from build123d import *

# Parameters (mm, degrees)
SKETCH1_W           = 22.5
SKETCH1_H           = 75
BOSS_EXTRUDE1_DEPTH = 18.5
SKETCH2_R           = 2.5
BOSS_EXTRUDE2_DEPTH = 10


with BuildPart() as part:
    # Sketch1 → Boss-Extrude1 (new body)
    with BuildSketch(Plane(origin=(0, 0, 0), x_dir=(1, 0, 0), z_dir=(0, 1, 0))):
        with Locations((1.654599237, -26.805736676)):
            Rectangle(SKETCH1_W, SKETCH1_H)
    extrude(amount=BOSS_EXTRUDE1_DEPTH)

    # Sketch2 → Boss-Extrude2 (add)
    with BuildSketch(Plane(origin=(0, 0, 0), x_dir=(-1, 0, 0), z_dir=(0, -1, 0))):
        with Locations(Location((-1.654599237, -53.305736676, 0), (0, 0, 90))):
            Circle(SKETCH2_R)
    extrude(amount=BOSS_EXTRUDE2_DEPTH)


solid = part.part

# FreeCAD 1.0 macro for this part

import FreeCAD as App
import Part
import Sketcher
Q = App.Units.Quantity


def add_polygon(sketch, points):
    """Adds a closed chain of lines whose ends are joined by coincident constraints."""
    first, n = sketch.GeometryCount, len(points)
    for a, b in zip(points, points[1:] + points[:1]):
        sketch.addGeometry(Part.LineSegment(App.Vector(*a, 0), App.Vector(*b, 0)), False)
    for i in range(n):
        sketch.addConstraint(Sketcher.Constraint("Coincident", first + i, 2, first + (i + 1) % n, 1))

doc = App.newDocument("Part")
body = doc.addObject("PartDesign::Body", "Body")

sketch1 = body.newObject("Sketcher::SketchObject", "Sketch")
sketch1.AttachmentSupport = (doc.getObject("XZ_Plane"), [""])
sketch1.MapMode = "FlatFace"
add_polygon(sketch1, [(-10, -11), (-10, 64), (13, 64), (13, -11)])
sketch1.addConstraint([
    Sketcher.Constraint("Vertical", 0),
    Sketcher.Constraint("Horizontal", 1),
    Sketcher.Constraint("Vertical", 2),
    Sketcher.Constraint("Horizontal", 3),
    Sketcher.Constraint("DistanceY", 0, 1, 0, 2, Q("75 mm")),
    Sketcher.Constraint("DistanceX", 1, 1, 1, 2, Q("22.5 mm")),
    Sketcher.Constraint("DistanceX", 0, 2, -1, 1, Q("9.595401 mm")),
    Sketcher.Constraint("DistanceY", -1, 1, 0, 2, Q("64.305737 mm")),
])
pad1 = body.newObject("PartDesign::Pad", "Pad")
pad1.Profile = sketch1
pad1.Length = 18.5
pad1.Reversed = True

sketch2 = body.newObject("Sketcher::SketchObject", "Sketch001")
sketch2.AttachmentSupport = (doc.getObject("XZ_Plane"), [""])
sketch2.MapMode = "FlatFace"
sketch2.addGeometry(Part.Circle(App.Vector(1.7, 53.3, 0), App.Vector(0, 0, 1), 2.5), False)
sketch2.addConstraint([
    Sketcher.Constraint("Diameter", 0, Q("5 mm")),
    Sketcher.Constraint("DistanceX", -1, 1, 0, 3, Q("1.654599 mm")),
    Sketcher.Constraint("DistanceY", -1, 1, 0, 3, Q("53.305737 mm")),
])
pad2 = body.newObject("PartDesign::Pad", "Pad001")
pad2.Profile = sketch2
pad2.Length = 10

doc.recompute()
